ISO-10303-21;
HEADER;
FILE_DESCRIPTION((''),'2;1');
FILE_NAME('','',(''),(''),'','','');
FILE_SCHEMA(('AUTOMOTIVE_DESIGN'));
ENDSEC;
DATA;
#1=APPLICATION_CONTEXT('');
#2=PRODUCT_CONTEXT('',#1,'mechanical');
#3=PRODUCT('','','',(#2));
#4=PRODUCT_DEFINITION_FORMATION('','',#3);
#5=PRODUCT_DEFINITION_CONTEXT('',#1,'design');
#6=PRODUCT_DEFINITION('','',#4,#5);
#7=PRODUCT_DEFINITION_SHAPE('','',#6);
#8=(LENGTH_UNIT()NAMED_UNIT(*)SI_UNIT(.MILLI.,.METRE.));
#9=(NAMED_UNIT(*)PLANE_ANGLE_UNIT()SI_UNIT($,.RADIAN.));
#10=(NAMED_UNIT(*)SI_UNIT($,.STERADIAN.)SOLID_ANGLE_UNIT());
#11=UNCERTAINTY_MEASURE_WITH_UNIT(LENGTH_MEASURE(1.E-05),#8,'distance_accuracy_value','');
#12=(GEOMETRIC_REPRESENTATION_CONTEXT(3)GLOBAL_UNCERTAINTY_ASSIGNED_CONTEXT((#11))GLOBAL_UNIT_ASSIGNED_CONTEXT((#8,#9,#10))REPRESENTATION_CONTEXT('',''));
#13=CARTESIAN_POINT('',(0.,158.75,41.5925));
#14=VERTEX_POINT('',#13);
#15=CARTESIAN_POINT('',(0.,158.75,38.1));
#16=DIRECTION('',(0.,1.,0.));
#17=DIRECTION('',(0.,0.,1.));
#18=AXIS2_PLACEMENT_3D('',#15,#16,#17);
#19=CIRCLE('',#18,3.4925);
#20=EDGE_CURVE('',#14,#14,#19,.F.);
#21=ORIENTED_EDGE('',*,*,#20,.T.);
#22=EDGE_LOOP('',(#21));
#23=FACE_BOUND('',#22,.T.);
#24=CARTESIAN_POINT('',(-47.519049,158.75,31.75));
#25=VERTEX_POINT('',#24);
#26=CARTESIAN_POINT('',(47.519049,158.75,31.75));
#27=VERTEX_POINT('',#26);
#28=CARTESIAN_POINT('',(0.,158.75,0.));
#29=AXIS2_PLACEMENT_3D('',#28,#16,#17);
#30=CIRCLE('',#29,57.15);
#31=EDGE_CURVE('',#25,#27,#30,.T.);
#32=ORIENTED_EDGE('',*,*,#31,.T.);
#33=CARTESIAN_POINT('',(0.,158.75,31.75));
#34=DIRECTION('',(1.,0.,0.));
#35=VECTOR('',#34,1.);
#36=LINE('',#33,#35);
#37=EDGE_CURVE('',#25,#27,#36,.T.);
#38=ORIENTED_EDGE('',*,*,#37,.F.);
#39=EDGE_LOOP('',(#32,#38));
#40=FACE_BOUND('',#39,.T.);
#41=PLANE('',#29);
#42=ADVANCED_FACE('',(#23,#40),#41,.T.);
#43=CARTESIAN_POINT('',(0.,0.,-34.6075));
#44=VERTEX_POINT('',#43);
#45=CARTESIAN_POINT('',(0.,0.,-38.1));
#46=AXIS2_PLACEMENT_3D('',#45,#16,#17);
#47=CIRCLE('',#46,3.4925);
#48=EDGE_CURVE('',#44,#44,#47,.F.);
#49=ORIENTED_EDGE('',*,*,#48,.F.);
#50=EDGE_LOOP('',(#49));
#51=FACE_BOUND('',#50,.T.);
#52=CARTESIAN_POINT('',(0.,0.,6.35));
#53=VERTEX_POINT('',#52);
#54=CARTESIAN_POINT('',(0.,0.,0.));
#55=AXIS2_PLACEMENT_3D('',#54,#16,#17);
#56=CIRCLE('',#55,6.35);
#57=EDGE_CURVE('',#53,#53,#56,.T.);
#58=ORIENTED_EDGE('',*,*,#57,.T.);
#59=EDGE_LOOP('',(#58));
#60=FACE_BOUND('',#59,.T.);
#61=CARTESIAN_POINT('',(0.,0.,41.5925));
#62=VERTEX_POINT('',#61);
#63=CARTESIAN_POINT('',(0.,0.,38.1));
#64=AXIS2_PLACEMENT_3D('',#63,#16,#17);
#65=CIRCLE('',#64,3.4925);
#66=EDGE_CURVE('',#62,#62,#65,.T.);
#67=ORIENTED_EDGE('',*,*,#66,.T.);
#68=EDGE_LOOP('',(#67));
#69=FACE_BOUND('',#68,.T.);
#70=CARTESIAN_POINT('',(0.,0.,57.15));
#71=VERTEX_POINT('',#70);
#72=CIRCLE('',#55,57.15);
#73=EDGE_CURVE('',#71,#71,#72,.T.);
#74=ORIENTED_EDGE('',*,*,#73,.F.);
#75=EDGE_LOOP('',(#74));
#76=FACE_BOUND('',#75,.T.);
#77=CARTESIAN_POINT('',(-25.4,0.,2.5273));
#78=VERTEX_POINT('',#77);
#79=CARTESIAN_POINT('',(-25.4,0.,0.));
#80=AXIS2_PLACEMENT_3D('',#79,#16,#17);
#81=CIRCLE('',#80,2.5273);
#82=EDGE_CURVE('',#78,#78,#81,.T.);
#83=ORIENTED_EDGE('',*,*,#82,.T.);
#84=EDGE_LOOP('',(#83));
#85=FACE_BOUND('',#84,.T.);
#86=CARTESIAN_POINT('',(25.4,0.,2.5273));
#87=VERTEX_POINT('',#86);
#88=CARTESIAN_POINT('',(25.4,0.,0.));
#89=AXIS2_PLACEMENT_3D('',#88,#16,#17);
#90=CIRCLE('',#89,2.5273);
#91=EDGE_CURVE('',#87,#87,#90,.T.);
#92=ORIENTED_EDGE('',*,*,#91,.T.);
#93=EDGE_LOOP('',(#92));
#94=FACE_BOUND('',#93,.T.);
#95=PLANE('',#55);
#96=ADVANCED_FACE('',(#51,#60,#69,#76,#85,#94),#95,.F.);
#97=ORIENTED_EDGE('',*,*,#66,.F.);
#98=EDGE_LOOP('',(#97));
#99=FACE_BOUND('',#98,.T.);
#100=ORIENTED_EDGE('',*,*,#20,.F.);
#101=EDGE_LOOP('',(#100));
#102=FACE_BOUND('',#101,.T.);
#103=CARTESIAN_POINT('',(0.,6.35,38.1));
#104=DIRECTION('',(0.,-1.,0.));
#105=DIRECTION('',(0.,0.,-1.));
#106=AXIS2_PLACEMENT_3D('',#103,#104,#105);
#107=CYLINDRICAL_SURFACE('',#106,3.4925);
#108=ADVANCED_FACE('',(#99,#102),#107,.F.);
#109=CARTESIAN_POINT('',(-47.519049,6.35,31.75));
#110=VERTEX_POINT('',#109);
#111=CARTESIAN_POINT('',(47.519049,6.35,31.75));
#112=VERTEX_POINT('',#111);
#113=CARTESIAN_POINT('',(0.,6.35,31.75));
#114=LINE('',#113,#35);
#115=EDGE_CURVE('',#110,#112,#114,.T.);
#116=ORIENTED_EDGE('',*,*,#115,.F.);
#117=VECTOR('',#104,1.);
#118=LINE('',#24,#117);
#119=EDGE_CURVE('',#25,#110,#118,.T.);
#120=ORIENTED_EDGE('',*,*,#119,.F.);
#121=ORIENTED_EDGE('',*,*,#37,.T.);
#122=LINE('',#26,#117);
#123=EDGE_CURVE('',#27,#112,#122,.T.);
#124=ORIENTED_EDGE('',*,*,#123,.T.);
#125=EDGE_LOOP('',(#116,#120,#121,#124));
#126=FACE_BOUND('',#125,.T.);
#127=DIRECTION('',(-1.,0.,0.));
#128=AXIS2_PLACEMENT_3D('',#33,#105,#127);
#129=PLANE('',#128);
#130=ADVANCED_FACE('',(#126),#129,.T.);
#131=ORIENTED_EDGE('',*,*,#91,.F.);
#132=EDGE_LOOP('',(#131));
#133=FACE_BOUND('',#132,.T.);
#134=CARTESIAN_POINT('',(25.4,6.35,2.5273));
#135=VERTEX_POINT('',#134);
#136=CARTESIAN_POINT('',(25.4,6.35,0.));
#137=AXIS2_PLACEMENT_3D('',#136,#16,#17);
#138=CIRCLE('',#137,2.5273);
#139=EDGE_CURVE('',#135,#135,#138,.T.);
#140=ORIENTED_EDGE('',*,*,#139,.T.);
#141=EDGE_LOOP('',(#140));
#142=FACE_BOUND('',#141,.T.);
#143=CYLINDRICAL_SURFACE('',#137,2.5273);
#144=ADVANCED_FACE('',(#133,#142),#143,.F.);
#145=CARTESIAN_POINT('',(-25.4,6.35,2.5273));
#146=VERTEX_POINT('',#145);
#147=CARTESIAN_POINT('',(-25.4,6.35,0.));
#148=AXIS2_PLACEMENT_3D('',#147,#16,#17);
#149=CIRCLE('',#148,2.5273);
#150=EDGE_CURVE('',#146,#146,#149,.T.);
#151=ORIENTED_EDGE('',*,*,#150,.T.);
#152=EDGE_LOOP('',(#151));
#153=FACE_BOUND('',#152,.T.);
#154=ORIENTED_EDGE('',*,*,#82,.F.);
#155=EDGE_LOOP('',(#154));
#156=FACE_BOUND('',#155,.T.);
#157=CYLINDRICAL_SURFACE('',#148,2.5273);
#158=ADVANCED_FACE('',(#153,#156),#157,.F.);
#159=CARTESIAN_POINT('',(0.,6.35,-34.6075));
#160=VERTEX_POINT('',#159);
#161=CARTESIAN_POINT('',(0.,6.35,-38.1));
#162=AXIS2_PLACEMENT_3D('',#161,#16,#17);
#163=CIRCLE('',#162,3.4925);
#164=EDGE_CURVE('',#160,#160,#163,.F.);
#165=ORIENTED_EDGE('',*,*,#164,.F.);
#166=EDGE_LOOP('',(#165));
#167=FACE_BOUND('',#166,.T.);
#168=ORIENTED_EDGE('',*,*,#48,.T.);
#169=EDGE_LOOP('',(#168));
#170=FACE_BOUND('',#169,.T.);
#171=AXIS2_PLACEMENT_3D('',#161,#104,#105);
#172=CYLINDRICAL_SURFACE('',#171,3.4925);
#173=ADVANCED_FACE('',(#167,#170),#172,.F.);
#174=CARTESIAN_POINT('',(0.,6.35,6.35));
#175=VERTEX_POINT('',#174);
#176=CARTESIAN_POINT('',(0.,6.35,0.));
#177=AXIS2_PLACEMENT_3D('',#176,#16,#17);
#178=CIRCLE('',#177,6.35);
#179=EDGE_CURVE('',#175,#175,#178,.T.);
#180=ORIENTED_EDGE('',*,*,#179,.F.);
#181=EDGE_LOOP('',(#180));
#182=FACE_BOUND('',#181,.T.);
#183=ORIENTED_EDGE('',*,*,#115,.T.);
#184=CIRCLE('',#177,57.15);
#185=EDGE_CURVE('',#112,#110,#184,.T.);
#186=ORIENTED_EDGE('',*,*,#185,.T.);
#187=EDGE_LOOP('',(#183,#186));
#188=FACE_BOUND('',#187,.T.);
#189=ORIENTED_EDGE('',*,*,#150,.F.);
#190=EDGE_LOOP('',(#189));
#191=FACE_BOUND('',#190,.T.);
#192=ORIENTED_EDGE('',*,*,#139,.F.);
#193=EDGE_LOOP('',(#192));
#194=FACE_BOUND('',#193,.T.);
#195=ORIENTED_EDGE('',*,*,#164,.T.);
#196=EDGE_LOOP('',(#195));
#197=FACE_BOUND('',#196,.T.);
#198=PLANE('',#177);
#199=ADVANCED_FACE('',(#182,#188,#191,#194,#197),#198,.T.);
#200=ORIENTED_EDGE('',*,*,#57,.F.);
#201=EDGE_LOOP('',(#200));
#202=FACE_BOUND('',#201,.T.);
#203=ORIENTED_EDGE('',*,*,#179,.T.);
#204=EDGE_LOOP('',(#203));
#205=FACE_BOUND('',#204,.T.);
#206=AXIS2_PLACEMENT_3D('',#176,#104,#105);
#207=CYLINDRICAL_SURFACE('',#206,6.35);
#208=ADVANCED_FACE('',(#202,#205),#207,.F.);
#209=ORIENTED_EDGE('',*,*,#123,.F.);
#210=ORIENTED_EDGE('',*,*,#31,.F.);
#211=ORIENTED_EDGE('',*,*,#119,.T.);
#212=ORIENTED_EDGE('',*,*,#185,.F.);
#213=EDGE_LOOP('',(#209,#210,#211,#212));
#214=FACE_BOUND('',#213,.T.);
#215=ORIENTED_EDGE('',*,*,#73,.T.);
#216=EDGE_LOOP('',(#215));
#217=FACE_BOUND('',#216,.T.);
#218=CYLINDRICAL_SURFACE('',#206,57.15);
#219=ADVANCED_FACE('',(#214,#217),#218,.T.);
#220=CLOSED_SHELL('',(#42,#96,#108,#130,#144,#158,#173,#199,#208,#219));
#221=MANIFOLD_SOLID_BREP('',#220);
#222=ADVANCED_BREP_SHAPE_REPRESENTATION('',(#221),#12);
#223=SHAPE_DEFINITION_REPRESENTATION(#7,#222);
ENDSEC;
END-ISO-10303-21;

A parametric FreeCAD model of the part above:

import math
import FreeCAD as App
import Part
import Sketcher

V = App.Vector
Q = App.Units.Quantity

doc = App.newDocument("Part")
body = doc.addObject("PartDesign::Body", "Body")

sketch1 = body.newObject("Sketcher::SketchObject", "Sketch")
sketch1.AttachmentSupport = (doc.getObject("XZ_Plane"), [""])
sketch1.MapMode = "FlatFace"
sketch1.addGeometry([
    Part.Circle(V(0, 0, 0), V(0, 0, 1), 57.15),
    Part.Circle(V(0, 38.1, 0), V(0, 0, 1), 3.4925),
    Part.Circle(V(0, 0, 0), V(0, 0, 1), 6.35),
    Part.Circle(V(0, -38.1, 0), V(0, 0, 1), 3.4925),
], False)
sketch1.addConstraint([
    Sketcher.Constraint("Coincident", 0, 3, -1, 1),
    Sketcher.Constraint("Coincident", 2, 3, -1, 1),
    Sketcher.Constraint("Equal", 1, 3),
    Sketcher.Constraint("Symmetric", 1, 3, 3, 3, -1, 1),
    Sketcher.Constraint("PointOnObject", 1, 3, -2),
    Sketcher.Constraint("Diameter", 0, Q("4.5 in")),
    Sketcher.Constraint("Diameter", 2, Q("0.5 in")),
    Sketcher.Constraint("Diameter", 1, Q("0.275 in")),
    Sketcher.Constraint("DistanceY", 3, 3, 1, 3, Q("3 in")),
])
pad1 = body.newObject("PartDesign::Pad", "Pad")
pad1.Profile = sketch1
pad1.Length = Q("0.25 in")
pad1.Reversed = True

sketch2 = body.newObject("Sketcher::SketchObject", "Sketch001")
sketch2.AttachmentSupport = (doc.getObject("XZ_Plane"), [""])
sketch2.MapMode = "FlatFace"
sketch2.AttachmentOffset = App.Placement(V(0, 0, -0.25 * 25.4), App.Rotation())
sketch2.addGeometry([
    Part.Circle(V(-25.4, 0, 0), V(0, 0, 1), 2.5273),
    Part.Circle(V(25.4, 0, 0), V(0, 0, 1), 2.5273),
], False)
sketch2.addConstraint([
    Sketcher.Constraint("Equal", 0, 1),
    Sketcher.Constraint("Symmetric", 0, 3, 1, 3, -1, 1),
    Sketcher.Constraint("PointOnObject", 0, 3, -1),
    Sketcher.Constraint("Diameter", 0, Q("0.199 in")),
    Sketcher.Constraint("DistanceX", 0, 3, -1, 1, Q("1 in")),
])
doc.recompute()
hole = body.newObject("PartDesign::Hole", "Hole")
hole.Profile = sketch2
hole.ThreadType = "None"
hole.Diameter = Q("0.199 in")
hole.DepthType = "ThroughAll"
hole.Reversed = True

sketch3 = body.newObject("Sketcher::SketchObject", "Sketch002")
sketch3.AttachmentSupport = (doc.getObject("XZ_Plane"), [""])
sketch3.MapMode = "FlatFace"
sketch3.AttachmentOffset = App.Placement(V(0, 0, -0.25 * 25.4), App.Rotation())
sketch3.addGeometry([
    Part.LineSegment(V(47.519049, 31.75, 0), V(-47.519049, 31.75, 0)),
    Part.ArcOfCircle(Part.Circle(V(0, 0, 0), V(0, 0, 1), 57.15), math.radians(33.748989), math.radians(146.251011)),
    Part.Circle(V(0, 38.1, 0), V(0, 0, 1), 3.4925),
], False)
sketch3.addConstraint([
    Sketcher.Constraint("Coincident", 0, 1, 1, 1),
    Sketcher.Constraint("Coincident", 1, 2, 0, 2),
    Sketcher.Constraint("Horizontal", 0),
    Sketcher.Constraint("Coincident", 1, 3, -1, 1),
    Sketcher.Constraint("PointOnObject", 2, 3, -2),
    Sketcher.Constraint("Radius", 1, Q("2.25 in")),
    Sketcher.Constraint("Diameter", 2, Q("0.275 in")),
    Sketcher.Constraint("DistanceY", -1, 1, 2, 3, Q("1.5 in")),
    Sketcher.Constraint("DistanceY", -1, 1, 0, 1, Q("1.25 in")),
])
pad2 = body.newObject("PartDesign::Pad", "Pad001")
pad2.Profile = sketch3
pad2.Length = Q("6 in")
pad2.Reversed = True

doc.recompute()
